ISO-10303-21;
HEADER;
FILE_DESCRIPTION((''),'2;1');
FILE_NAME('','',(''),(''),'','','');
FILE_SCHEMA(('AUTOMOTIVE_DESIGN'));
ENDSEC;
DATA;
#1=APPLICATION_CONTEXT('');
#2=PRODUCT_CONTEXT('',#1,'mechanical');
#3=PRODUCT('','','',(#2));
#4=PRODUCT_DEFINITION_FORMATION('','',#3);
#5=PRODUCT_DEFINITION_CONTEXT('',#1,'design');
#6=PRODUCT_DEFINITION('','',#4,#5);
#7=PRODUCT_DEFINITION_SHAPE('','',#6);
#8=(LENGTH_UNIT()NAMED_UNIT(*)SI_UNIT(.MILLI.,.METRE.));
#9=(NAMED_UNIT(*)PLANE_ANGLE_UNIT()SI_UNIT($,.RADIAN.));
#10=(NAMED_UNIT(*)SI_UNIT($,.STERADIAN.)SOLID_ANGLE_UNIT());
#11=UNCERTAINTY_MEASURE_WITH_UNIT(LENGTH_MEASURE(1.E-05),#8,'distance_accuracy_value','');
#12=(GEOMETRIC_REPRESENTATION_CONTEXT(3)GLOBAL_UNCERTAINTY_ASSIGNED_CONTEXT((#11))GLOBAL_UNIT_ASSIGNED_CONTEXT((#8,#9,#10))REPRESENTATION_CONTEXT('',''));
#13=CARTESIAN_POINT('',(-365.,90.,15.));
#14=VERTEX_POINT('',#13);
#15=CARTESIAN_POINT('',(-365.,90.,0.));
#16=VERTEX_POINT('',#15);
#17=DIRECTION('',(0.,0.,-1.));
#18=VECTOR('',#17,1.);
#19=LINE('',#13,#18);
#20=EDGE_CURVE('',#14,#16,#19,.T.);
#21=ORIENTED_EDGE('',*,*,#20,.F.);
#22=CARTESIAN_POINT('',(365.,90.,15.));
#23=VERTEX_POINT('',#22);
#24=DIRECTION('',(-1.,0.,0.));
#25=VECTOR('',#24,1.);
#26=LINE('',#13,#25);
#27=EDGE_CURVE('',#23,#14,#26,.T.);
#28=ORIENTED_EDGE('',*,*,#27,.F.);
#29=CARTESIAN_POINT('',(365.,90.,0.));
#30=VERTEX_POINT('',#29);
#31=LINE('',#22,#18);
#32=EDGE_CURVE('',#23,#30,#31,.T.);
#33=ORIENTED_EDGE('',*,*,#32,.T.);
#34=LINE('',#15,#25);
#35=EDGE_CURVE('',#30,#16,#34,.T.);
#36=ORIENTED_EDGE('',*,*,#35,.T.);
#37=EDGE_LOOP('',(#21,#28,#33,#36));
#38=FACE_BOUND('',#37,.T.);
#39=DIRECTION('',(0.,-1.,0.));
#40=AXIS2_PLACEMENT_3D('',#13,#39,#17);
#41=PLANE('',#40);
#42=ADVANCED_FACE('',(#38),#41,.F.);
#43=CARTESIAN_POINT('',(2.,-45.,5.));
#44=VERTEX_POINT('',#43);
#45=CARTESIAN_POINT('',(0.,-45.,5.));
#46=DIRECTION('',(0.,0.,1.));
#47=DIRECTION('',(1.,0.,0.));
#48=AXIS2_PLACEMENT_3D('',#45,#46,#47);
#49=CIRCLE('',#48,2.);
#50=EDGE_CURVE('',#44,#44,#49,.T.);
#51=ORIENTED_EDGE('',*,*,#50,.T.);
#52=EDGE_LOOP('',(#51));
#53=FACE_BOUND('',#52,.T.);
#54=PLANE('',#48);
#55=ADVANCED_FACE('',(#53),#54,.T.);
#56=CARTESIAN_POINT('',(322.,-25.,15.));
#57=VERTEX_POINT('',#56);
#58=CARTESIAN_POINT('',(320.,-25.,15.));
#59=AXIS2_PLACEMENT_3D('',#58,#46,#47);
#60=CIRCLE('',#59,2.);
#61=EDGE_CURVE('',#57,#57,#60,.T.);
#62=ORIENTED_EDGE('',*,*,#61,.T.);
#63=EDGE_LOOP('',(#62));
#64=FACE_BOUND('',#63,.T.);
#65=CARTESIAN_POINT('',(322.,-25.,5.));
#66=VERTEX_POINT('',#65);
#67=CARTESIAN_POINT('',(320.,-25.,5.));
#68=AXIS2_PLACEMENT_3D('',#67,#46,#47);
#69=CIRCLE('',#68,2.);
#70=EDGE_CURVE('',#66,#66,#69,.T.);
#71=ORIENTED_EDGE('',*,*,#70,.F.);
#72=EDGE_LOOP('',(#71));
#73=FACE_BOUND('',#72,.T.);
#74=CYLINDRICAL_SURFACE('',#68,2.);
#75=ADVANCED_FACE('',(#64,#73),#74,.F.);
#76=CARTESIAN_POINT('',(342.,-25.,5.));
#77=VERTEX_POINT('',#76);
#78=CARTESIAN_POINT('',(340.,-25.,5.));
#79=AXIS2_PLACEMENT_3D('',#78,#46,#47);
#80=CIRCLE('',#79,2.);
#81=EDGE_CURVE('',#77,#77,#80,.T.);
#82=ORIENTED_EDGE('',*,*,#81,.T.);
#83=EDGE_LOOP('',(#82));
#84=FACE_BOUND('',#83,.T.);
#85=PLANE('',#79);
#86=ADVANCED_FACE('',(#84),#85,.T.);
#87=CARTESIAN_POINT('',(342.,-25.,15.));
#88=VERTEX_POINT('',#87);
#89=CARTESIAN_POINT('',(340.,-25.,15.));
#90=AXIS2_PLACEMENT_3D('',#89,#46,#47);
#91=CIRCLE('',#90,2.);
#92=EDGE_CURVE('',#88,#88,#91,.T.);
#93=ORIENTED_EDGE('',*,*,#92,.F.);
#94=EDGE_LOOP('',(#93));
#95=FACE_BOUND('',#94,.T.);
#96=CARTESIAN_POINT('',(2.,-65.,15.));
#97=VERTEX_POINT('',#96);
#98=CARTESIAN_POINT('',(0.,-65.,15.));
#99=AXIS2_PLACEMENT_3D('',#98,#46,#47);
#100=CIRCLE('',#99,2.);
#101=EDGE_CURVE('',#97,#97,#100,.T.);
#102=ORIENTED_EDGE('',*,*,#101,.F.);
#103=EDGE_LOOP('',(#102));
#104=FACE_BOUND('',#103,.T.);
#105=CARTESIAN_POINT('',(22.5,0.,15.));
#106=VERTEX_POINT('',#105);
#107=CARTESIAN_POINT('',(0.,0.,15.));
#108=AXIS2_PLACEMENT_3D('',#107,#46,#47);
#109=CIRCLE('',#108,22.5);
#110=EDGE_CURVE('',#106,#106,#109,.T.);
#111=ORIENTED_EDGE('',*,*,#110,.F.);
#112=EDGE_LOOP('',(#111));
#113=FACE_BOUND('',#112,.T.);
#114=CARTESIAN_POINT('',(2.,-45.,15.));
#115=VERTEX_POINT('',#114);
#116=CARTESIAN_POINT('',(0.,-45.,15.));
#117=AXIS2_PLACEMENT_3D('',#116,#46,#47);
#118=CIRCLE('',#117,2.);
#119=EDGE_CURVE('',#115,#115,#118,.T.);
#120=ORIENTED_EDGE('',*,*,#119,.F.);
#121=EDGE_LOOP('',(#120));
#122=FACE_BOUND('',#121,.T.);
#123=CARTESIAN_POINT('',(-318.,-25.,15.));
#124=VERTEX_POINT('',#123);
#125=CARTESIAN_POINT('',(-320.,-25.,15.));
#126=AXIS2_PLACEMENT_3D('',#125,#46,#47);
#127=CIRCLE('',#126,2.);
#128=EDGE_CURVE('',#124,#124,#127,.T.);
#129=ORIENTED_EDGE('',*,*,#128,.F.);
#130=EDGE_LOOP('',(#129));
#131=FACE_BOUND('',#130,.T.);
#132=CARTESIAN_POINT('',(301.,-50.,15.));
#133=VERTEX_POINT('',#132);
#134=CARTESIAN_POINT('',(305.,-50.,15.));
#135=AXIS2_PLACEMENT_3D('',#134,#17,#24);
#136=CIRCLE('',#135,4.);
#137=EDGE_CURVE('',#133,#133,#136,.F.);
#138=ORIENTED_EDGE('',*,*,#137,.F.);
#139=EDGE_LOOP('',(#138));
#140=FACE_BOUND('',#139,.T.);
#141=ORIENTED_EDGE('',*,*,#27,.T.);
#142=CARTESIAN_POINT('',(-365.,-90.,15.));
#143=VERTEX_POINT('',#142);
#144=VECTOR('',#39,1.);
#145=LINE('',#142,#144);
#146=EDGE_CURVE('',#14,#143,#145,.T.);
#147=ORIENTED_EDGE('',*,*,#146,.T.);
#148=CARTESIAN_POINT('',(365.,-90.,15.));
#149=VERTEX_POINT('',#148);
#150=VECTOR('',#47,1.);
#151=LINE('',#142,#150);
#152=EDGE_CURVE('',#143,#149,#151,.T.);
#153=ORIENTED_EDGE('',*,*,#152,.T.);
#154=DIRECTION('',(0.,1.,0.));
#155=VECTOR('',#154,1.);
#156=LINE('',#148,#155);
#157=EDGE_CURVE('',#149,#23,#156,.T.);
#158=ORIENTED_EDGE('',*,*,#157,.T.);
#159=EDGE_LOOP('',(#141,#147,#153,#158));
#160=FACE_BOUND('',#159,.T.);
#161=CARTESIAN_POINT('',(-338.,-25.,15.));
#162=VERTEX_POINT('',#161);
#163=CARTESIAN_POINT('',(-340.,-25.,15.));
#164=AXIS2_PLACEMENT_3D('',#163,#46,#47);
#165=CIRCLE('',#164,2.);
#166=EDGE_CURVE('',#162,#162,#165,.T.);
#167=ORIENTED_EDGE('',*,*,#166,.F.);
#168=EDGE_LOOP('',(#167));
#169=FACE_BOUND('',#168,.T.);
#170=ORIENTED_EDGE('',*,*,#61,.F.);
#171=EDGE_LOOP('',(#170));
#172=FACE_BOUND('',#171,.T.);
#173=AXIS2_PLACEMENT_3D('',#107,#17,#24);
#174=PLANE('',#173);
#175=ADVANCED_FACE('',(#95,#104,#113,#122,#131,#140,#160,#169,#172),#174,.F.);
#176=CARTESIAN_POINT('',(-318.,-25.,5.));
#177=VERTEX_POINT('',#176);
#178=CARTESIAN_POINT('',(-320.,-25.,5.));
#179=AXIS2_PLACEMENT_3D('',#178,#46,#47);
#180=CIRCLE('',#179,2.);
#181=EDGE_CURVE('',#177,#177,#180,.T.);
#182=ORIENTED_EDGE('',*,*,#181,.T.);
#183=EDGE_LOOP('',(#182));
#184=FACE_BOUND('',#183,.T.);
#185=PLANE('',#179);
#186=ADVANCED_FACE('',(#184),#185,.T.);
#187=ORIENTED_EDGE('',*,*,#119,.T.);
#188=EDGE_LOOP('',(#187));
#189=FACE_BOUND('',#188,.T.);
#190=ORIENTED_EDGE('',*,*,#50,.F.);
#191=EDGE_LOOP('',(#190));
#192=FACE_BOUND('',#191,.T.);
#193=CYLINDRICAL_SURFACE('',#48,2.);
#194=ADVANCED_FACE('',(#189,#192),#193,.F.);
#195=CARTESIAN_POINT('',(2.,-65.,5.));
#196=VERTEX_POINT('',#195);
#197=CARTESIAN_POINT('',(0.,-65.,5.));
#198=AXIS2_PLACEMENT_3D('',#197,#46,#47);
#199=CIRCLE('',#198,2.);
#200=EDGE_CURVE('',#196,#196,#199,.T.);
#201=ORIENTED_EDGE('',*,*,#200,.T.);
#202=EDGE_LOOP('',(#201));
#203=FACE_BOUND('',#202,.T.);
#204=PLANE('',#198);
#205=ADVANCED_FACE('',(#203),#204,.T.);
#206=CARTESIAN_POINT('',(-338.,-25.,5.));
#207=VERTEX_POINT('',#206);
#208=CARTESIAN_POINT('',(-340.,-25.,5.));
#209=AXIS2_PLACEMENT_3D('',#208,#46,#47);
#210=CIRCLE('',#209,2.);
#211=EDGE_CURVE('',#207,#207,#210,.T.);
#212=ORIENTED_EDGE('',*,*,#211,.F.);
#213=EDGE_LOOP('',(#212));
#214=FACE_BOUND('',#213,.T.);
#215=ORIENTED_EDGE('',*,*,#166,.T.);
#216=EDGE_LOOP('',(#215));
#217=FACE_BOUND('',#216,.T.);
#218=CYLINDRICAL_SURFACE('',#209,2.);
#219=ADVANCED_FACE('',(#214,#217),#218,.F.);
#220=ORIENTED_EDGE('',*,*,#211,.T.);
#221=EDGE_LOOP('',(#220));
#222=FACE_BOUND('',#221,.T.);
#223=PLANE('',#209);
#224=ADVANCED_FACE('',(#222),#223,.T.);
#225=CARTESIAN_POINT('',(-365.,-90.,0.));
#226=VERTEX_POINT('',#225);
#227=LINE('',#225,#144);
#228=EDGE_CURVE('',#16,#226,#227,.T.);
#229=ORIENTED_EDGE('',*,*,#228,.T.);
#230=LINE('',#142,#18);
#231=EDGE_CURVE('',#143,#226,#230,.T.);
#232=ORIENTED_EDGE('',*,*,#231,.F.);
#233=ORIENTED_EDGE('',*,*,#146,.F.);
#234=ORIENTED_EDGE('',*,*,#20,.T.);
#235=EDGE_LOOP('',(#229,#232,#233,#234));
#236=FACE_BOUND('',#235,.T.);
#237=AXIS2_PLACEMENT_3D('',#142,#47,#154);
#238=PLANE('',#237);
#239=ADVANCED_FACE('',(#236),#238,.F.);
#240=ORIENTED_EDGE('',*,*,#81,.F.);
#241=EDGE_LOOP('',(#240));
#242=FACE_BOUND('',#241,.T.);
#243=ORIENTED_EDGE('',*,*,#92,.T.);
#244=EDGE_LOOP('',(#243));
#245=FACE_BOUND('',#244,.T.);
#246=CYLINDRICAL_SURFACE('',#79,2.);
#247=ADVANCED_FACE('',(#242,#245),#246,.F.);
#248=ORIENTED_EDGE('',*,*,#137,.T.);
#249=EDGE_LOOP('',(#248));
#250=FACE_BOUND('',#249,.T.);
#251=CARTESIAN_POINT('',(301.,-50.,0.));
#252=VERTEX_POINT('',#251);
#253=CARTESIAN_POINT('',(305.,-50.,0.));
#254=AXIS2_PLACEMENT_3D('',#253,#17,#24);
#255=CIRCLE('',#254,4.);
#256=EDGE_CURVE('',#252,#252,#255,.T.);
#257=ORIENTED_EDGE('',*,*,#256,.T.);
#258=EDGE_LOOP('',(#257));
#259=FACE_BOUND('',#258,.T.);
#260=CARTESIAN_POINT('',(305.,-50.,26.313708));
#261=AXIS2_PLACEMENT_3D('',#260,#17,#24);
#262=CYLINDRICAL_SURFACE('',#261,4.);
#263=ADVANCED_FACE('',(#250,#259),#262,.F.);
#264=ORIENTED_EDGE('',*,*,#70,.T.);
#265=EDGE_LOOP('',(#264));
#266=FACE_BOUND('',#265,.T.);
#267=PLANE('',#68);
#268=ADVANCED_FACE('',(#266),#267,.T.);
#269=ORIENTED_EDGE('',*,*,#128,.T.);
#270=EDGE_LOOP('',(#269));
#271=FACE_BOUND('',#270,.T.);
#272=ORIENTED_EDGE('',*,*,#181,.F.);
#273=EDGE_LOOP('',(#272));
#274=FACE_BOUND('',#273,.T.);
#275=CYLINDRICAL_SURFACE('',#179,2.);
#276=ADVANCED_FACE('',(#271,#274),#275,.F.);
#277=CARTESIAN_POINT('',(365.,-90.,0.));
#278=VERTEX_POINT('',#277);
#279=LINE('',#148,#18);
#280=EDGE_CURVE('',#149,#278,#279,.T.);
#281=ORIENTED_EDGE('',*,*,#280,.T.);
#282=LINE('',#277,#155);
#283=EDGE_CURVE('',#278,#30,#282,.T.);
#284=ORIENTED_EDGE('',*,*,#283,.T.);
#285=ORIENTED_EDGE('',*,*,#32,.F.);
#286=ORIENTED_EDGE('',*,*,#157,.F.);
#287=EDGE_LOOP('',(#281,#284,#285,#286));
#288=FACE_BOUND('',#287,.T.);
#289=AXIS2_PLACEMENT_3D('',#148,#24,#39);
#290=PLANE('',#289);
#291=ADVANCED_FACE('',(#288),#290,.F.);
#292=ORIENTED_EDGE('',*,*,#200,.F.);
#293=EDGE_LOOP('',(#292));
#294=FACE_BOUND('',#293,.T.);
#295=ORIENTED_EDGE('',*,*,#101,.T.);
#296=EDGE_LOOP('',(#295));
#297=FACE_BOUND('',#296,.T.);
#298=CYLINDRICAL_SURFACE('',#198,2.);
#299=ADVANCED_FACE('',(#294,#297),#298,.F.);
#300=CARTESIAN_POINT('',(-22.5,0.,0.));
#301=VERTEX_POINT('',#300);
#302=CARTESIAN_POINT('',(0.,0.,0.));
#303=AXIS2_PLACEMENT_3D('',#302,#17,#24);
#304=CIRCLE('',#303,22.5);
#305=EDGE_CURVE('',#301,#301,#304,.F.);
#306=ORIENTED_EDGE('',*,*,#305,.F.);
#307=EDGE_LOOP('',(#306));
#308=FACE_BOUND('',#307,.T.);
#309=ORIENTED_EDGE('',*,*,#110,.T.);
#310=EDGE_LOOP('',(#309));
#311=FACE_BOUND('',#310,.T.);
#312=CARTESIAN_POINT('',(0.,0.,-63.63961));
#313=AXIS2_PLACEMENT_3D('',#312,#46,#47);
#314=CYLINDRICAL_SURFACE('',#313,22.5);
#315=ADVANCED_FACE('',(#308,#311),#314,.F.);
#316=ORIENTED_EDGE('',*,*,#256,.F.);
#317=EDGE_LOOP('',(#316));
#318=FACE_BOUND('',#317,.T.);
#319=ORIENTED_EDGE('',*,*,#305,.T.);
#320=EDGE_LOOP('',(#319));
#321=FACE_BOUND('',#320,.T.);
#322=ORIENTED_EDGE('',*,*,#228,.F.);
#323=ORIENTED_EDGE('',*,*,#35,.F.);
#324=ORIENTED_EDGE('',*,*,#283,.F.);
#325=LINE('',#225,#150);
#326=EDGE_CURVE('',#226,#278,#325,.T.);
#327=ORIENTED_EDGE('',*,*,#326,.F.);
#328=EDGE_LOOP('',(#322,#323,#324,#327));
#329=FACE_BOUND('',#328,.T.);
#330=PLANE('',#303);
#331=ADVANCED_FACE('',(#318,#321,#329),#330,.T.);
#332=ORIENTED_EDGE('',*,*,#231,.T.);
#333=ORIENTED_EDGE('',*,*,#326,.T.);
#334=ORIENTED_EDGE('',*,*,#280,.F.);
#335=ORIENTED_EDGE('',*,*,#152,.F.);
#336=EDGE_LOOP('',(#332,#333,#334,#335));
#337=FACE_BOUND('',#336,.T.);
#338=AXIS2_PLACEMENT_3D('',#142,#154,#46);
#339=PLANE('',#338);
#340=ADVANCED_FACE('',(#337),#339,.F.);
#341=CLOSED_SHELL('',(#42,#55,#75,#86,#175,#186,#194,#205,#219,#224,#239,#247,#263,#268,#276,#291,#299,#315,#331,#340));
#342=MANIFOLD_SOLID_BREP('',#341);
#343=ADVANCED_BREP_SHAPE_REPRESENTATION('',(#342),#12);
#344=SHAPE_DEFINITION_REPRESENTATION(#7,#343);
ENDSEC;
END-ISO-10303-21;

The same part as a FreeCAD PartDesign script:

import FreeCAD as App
import Part
import Sketcher
Q = App.Units.Quantity

doc = App.newDocument("Part")
body = doc.addObject("PartDesign::Body", "Body")

# Sketch on XY plane
sketch1 = body.newObject("Sketcher::SketchObject", "Sketch")
sketch1.AttachmentSupport = (doc.getObject("XY_Plane"), [""])
sketch1.MapMode = "FlatFace"
sketch1.addGeometry(Part.LineSegment(App.Vector(-365, 90, 0), App.Vector(-365, -90, 0)), False)
sketch1.addGeometry(Part.LineSegment(App.Vector(-365, -90, 0), App.Vector(365, -90, 0)), False)
sketch1.addGeometry(Part.LineSegment(App.Vector(365, -90, 0), App.Vector(365, 90, 0)), False)
sketch1.addGeometry(Part.LineSegment(App.Vector(365, 90, 0), App.Vector(-365, 90, 0)), False)
sketch1.addConstraint(Sketcher.Constraint("Coincident", 0, 2, 1, 1))
sketch1.addConstraint(Sketcher.Constraint("Coincident", 1, 2, 2, 1))
sketch1.addConstraint(Sketcher.Constraint("Coincident", 2, 2, 3, 1))
sketch1.addConstraint(Sketcher.Constraint("Coincident", 3, 2, 0, 1))
sketch1.addConstraint(Sketcher.Constraint("Vertical", 0))
sketch1.addConstraint(Sketcher.Constraint("Horizontal", 1))
sketch1.addConstraint(Sketcher.Constraint("Vertical", 2))
sketch1.addConstraint(Sketcher.Constraint("Horizontal", 3))
sketch1.addConstraint(Sketcher.Constraint("Symmetric", 0, 2, 2, 2, -1, 1))
sketch1.addConstraint(Sketcher.Constraint("DistanceX", 1, 1, 1, 2, Q("730 mm")))
sketch1.addConstraint(Sketcher.Constraint("DistanceY", 0, 2, 0, 1, Q("180 mm")))
pad1 = body.newObject("PartDesign::Pad", "Pad")
pad1.Profile = sketch1
pad1.Length = 15

# Sketch on XY plane
sketch2 = body.newObject("Sketcher::SketchObject", "Sketch001")
sketch2.AttachmentSupport = (doc.getObject("XY_Plane"), [""])
sketch2.MapMode = "FlatFace"
sketch2.AttachmentOffset = App.Placement(App.Vector(0, 0, 15), App.Rotation())
sketch2.addGeometry(Part.Circle(App.Vector(-340, -25, 0), App.Vector(0, 0, 1), 2), False)
sketch2.addGeometry(Part.Circle(App.Vector(0, -65, 0), App.Vector(0, 0, 1), 2), False)
sketch2.addGeometry(Part.Circle(App.Vector(0, -45, 0), App.Vector(0, 0, 1), 2), False)
sketch2.addGeometry(Part.Circle(App.Vector(-320, -25, 0), App.Vector(0, 0, 1), 2), False)
sketch2.addGeometry(Part.Circle(App.Vector(340, -25, 0), App.Vector(0, 0, 1), 2), False)
sketch2.addGeometry(Part.Circle(App.Vector(320, -25, 0), App.Vector(0, 0, 1), 2), False)
sketch2.addConstraint(Sketcher.Constraint("Equal", 0, 1))
sketch2.addConstraint(Sketcher.Constraint("Equal", 1, 2))
sketch2.addConstraint(Sketcher.Constraint("Equal", 2, 3))
sketch2.addConstraint(Sketcher.Constraint("Equal", 3, 4))
sketch2.addConstraint(Sketcher.Constraint("Equal", 4, 5))
sketch2.addConstraint(Sketcher.Constraint("Symmetric", 0, 3, 4, 3, -2))
sketch2.addConstraint(Sketcher.Constraint("Symmetric", 3, 3, 5, 3, -2))
sketch2.addConstraint(Sketcher.Constraint("PointOnObject", 1, 3, -2))
sketch2.addConstraint(Sketcher.Constraint("PointOnObject", 2, 3, -2))
sketch2.addConstraint(Sketcher.Constraint("Horizontal", 0, 3, 3, 3))
sketch2.addConstraint(Sketcher.Constraint("Diameter", 0, Q("4 mm")))
sketch2.addConstraint(Sketcher.Constraint("DistanceX", 0, 3, -1, 1, Q("340 mm")))
sketch2.addConstraint(Sketcher.Constraint("DistanceY", 0, 3, -1, 1, Q("25 mm")))
sketch2.addConstraint(Sketcher.Constraint("DistanceY", 1, 3, -1, 1, Q("65 mm")))
sketch2.addConstraint(Sketcher.Constraint("DistanceY", 2, 3, -1, 1, Q("45 mm")))
sketch2.addConstraint(Sketcher.Constraint("DistanceX", 3, 3, -1, 1, Q("320 mm")))
pocket1 = body.newObject("PartDesign::Pocket", "Pocket")
pocket1.Profile = sketch2
pocket1.Length = 10

# Sketch on XY plane
sketch3 = body.newObject("Sketcher::SketchObject", "Sketch002")
sketch3.AttachmentSupport = (doc.getObject("XY_Plane"), [""])
sketch3.MapMode = "FlatFace"
sketch3.AttachmentOffset = App.Placement(App.Vector(0, 0, 15), App.Rotation())
sketch3.addGeometry(Part.Circle(App.Vector(0, 0, 0), App.Vector(0, 0, 1), 22.5), False)
sketch3.addConstraint(Sketcher.Constraint("Coincident", 0, 3, -1, 1))
sketch3.addConstraint(Sketcher.Constraint("Diameter", 0, Q("45 mm")))
pocket2 = body.newObject("PartDesign::Pocket", "Pocket001")
pocket2.Profile = sketch3
pocket2.Length = 15

# Sketch on XY plane
sketch4 = body.newObject("Sketcher::SketchObject", "Sketch003")
sketch4.AttachmentSupport = (doc.getObject("XY_Plane"), [""])
sketch4.MapMode = "FlatFace"
sketch4.addGeometry(Part.Circle(App.Vector(305, -50, 0), App.Vector(0, 0, 1), 4), False)
sketch4.addConstraint(Sketcher.Constraint("Diameter", 0, Q("8 mm")))
sketch4.addConstraint(Sketcher.Constraint("DistanceX", -1, 1, 0, 3, Q("305 mm")))
sketch4.addConstraint(Sketcher.Constraint("DistanceY", 0, 3, -1, 1, Q("50 mm")))
pocket3 = body.newObject("PartDesign::Pocket", "Pocket002")
pocket3.Profile = sketch4
pocket3.Length = 15
pocket3.Reversed = True

doc.recompute()
